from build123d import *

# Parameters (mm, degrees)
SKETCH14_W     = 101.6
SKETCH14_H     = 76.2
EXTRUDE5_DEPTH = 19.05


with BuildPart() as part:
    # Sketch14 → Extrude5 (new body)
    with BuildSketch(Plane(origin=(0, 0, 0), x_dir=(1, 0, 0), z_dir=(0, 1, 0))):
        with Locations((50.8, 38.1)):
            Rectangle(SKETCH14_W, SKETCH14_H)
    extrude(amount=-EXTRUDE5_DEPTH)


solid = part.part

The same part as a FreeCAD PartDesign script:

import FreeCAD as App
import Part
import Sketcher

V = App.Vector
Q = App.Units.Quantity

doc = App.newDocument("Part")
body = doc.addObject("PartDesign::Body", "Body")

sketch1 = body.newObject("Sketcher::SketchObject", "Sketch")
sketch1.AttachmentSupport = (doc.getObject("XZ_Plane"), [""])
sketch1.MapMode = "FlatFace"
sketch1.addGeometry([
    Part.LineSegment(V(0, -76, 0), V(0, 0, 0)),
    Part.LineSegment(V(0, 0, 0), V(102, 0, 0)),
    Part.LineSegment(V(102, 0, 0), V(102, -76, 0)),
    Part.LineSegment(V(102, -76, 0), V(0, -76, 0)),
], False)
sketch1.addConstraint([
    Sketcher.Constraint("Coincident", 0, 2, 1, 1),
    Sketcher.Constraint("Coincident", 1, 2, 2, 1),
    Sketcher.Constraint("Coincident", 2, 2, 3, 1),
    Sketcher.Constraint("Coincident", 3, 2, 0, 1),
    Sketcher.Constraint("Vertical", 0),
    Sketcher.Constraint("Horizontal", 1),
    Sketcher.Constraint("Vertical", 2),
    Sketcher.Constraint("Horizontal", 3),
    Sketcher.Constraint("Coincident", 0, 2, -1, 1),
    Sketcher.Constraint("DistanceX", 1, 1, 1, 2, Q("4 in")),
    Sketcher.Constraint("DistanceY", 0, 1, 0, 2, Q("3 in")),
])
pad1 = body.newObject("PartDesign::Pad", "Pad")
pad1.Profile = sketch1
pad1.Length = Q("0.75 in")

doc.recompute()
